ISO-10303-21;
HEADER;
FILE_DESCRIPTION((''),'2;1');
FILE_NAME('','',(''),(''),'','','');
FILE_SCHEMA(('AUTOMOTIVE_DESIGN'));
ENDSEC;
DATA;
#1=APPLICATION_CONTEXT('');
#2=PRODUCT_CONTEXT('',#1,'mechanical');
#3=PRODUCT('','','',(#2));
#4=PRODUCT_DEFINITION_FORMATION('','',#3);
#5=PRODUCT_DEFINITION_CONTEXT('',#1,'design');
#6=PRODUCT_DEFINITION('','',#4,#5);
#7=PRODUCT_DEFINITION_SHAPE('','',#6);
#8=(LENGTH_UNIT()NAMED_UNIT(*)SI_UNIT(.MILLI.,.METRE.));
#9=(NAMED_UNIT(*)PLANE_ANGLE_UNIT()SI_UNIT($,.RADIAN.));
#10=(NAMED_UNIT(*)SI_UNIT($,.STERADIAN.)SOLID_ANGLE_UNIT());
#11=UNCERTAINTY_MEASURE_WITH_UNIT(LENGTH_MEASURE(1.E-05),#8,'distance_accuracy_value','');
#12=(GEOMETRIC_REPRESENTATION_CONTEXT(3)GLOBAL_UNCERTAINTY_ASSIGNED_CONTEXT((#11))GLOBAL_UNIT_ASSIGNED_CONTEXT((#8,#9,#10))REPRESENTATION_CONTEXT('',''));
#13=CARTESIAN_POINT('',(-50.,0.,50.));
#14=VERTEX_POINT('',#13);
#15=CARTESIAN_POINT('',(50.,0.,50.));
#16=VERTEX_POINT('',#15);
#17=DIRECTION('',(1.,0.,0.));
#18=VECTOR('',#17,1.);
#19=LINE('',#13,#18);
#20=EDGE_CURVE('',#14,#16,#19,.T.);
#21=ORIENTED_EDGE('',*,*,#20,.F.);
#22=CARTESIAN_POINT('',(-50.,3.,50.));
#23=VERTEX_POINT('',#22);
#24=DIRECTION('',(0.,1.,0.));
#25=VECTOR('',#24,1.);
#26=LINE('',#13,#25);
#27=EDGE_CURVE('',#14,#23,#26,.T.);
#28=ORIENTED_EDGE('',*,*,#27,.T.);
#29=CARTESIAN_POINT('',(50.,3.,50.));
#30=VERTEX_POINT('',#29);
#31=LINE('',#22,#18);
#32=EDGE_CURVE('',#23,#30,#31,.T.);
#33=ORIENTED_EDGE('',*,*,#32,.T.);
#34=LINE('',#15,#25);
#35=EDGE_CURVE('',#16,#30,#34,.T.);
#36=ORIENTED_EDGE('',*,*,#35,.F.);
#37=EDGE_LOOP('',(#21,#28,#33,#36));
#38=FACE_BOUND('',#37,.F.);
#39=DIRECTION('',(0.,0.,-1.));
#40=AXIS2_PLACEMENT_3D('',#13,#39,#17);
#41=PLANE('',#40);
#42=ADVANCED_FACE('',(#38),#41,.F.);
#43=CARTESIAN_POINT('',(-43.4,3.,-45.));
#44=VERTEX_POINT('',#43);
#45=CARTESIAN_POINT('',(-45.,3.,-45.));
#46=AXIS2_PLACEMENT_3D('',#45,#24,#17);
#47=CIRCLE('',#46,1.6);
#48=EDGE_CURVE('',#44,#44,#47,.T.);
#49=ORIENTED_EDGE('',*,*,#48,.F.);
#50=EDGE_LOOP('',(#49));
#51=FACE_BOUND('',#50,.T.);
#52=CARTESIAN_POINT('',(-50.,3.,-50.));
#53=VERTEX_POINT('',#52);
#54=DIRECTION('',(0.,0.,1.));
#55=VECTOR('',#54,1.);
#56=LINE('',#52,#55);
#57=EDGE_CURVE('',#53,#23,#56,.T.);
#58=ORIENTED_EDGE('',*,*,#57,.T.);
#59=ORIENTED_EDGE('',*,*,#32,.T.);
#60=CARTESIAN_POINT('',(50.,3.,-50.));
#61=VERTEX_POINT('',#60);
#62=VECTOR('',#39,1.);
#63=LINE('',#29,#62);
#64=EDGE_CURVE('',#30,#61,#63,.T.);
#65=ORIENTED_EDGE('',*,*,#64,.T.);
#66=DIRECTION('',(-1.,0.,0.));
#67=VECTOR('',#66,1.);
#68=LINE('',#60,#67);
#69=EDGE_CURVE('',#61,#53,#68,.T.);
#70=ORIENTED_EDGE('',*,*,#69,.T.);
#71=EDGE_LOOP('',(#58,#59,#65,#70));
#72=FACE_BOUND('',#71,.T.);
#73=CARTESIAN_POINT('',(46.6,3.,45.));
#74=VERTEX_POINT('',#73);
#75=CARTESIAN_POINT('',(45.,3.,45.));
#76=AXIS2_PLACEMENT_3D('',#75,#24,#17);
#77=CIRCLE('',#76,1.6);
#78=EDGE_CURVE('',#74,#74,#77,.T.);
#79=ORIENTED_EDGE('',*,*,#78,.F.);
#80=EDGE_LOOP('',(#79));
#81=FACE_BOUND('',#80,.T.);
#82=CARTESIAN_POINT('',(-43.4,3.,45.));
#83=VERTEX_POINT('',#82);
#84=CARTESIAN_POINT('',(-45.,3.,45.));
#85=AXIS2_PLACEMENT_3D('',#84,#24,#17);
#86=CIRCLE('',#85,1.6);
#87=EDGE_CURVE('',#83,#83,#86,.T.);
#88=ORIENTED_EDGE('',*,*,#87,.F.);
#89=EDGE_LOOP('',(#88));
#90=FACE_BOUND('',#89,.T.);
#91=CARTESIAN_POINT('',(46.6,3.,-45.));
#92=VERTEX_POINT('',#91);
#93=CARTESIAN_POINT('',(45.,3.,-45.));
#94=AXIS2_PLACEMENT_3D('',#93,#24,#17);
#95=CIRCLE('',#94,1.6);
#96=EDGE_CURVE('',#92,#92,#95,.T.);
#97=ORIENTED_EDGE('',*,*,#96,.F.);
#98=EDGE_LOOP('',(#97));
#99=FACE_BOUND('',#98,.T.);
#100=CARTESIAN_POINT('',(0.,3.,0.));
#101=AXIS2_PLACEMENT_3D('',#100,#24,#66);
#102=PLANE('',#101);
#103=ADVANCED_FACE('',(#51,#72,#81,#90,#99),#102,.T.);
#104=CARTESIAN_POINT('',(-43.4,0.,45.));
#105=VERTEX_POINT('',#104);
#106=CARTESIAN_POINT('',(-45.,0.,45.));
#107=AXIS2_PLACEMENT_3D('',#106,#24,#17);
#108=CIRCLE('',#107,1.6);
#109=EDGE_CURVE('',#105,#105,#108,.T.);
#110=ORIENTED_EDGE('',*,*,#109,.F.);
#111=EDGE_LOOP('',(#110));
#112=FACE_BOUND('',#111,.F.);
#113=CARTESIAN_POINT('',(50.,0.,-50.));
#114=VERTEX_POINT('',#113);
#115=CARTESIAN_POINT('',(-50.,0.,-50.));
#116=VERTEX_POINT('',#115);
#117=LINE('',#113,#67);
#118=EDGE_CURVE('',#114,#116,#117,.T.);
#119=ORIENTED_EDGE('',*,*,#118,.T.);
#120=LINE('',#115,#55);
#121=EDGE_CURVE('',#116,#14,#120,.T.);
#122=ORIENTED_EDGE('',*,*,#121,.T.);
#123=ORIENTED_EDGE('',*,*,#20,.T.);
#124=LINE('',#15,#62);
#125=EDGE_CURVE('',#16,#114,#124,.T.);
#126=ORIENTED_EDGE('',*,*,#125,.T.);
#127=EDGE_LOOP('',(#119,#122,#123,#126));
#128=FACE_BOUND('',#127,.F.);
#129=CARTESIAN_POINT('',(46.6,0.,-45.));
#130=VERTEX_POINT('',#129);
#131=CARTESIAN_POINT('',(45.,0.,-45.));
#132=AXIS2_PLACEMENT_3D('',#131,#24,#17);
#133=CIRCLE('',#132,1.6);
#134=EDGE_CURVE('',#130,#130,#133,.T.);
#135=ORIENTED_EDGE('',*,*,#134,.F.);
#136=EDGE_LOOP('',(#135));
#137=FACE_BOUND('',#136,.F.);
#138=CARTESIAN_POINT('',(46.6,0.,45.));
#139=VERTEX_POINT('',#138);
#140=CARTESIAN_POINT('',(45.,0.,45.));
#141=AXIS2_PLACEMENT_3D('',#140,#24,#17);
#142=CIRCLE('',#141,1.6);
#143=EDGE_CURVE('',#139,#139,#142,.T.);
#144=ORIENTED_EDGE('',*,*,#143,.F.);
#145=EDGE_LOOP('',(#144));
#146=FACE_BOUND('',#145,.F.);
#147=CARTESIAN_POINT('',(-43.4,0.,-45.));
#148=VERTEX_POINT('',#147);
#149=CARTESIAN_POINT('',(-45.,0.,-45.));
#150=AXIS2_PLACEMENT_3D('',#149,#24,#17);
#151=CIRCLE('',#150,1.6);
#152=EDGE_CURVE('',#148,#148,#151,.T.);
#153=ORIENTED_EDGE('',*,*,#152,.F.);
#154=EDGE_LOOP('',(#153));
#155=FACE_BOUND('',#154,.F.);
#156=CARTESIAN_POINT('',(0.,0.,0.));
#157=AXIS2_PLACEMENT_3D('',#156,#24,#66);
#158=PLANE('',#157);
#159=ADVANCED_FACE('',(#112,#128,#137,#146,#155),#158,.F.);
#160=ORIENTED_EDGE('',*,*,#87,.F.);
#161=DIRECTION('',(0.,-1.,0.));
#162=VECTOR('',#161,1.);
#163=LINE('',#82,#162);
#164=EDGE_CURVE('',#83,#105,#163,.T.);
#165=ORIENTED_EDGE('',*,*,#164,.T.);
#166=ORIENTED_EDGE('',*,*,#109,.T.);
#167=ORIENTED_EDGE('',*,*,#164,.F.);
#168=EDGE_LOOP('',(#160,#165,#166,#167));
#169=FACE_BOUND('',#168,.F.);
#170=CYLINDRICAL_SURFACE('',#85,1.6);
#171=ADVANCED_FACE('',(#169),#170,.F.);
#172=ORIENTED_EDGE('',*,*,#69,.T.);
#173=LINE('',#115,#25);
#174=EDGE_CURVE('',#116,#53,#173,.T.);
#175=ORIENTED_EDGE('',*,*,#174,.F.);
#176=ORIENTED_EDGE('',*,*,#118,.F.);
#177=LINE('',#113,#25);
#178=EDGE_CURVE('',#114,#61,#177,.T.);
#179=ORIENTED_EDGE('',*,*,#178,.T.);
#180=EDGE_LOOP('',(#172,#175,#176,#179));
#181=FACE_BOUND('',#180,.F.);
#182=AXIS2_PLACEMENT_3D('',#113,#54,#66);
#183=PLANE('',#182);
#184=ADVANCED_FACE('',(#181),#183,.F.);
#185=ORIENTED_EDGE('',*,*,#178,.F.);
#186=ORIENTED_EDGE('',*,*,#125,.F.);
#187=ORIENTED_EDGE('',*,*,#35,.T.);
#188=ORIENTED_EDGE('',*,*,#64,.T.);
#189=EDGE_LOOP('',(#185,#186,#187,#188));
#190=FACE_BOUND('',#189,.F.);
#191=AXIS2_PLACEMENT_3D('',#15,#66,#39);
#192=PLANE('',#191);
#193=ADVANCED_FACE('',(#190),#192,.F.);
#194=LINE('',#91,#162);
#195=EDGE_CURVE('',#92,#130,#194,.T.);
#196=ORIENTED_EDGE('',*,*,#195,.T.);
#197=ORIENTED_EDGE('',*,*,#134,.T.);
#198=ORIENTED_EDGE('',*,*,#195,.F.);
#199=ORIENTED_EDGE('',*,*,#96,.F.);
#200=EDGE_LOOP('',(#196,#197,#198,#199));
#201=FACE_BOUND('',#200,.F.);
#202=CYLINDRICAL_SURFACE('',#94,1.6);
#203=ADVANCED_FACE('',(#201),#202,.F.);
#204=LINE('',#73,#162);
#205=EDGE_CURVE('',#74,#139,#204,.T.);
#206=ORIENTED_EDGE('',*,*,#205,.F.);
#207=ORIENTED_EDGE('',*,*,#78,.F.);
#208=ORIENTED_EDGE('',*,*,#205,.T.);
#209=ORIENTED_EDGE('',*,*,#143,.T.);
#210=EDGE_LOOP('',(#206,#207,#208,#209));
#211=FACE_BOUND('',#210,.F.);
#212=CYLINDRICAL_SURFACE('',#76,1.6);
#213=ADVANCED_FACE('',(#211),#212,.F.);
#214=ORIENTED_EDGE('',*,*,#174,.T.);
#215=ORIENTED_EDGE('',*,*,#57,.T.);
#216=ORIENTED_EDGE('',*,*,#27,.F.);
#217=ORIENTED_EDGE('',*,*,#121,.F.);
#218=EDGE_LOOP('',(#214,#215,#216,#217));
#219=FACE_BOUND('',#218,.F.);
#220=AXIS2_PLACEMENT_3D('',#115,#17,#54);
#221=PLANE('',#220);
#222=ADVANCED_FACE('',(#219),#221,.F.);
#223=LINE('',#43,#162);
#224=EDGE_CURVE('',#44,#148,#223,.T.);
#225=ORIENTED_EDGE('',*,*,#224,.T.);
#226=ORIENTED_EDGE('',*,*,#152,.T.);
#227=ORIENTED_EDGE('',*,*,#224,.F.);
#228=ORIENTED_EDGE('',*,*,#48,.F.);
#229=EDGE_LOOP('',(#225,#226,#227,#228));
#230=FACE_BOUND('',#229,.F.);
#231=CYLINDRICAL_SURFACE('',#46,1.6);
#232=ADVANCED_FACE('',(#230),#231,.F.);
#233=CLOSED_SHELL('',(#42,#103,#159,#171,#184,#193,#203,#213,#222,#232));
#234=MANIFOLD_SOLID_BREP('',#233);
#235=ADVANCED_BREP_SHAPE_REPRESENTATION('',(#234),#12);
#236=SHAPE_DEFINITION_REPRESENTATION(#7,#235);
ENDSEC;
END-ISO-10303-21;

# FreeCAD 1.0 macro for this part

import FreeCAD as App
import Part
import Sketcher
from FreeCAD import Vector
Q = App.Units.Quantity


def add_polygon(sketch, points):
    """Adds a closed chain of lines whose ends are joined by coincident constraints."""
    first, n = sketch.GeometryCount, len(points)
    for a, b in zip(points, points[1:] + points[:1]):
        sketch.addGeometry(Part.LineSegment(App.Vector(*a, 0), App.Vector(*b, 0)), False)
    for i in range(n):
        sketch.addConstraint(Sketcher.Constraint("Coincident", first + i, 2, first + (i + 1) % n, 1))

doc = App.newDocument("Part")
params = doc.addObject("Spreadsheet::Sheet", "Params")
for row, (alias, value) in enumerate([
    ("sketch1_width", "100 mm"),
    ("pad1_length", "3 mm"),
    ("sketch2_diameter", "3.2 mm"),
], start=1):
    params.set(f"A{row}", alias)
    params.set(f"B{row}", "=" + value)
    params.setAlias(f"B{row}", alias)

body = doc.addObject("PartDesign::Body", "Body")

sketch1 = doc.addObject("Sketcher::SketchObject", "Sketch")
body.addObject(sketch1)
sketch1.AttachmentSupport = (doc.XZ_Plane, [""])
sketch1.MapMode = "FlatFace"
add_polygon(sketch1, [(-50, -50), (-50, 50), (50, 50), (50, -50)])
sketch1.addConstraint(Sketcher.Constraint("Vertical", 0))
sketch1.addConstraint(Sketcher.Constraint("Horizontal", 1))
sketch1.addConstraint(Sketcher.Constraint("Vertical", 2))
sketch1.addConstraint(Sketcher.Constraint("Horizontal", 3))
sketch1.addConstraint(Sketcher.Constraint("Symmetric", 0, 2, 2, 2, -1, 1))
sketch1.addConstraint(Sketcher.Constraint("Equal", 3, 0))
sketch1.addConstraint(Sketcher.Constraint("DistanceX", 1, 1, 1, 2, Q("100 mm")))
sketch1.setExpression("Constraints[10]", "Params.sketch1_width")
pad1 = doc.addObject("PartDesign::Pad", "Pad")
body.addObject(pad1)
pad1.Profile = sketch1
pad1.setExpression("Length", "Params.pad1_length")
pad1.Reversed = True

sketch2 = doc.addObject("Sketcher::SketchObject", "Sketch001")
body.addObject(sketch2)
sketch2.AttachmentSupport = (doc.XZ_Plane, [""])
sketch2.MapMode = "FlatFace"
sketch2.AttachmentOffset = App.Placement(Vector(0, 0, -3), App.Rotation())
sketch2.addGeometry(Part.Circle(Vector(-45, -45, 0), Vector(0, 0, 1), 1.6), False)
sketch2.addGeometry(Part.Circle(Vector(45, -45, 0), Vector(0, 0, 1), 1.6), False)
sketch2.addGeometry(Part.Circle(Vector(45, 45, 0), Vector(0, 0, 1), 1.6), False)
sketch2.addGeometry(Part.Circle(Vector(-45, 45, 0), Vector(0, 0, 1), 1.6), False)
sketch2.addConstraint(Sketcher.Constraint("Equal", 0, 1))
sketch2.addConstraint(Sketcher.Constraint("Equal", 1, 2))
sketch2.addConstraint(Sketcher.Constraint("Equal", 2, 3))
sketch2.addConstraint(Sketcher.Constraint("Symmetric", 0, 3, 2, 3, -1, 1))
sketch2.addConstraint(Sketcher.Constraint("Symmetric", 1, 3, 3, 3, -1, 1))
sketch2.addConstraint(Sketcher.Constraint("Symmetric", 0, 3, 1, 3, -2))
sketch2.addConstraint(Sketcher.Constraint("Diameter", 0, Q("3.2 mm")))
sketch2.addConstraint(Sketcher.Constraint("DistanceX", 0, 3, -1, 1, Q("45 mm")))
sketch2.addConstraint(Sketcher.Constraint("DistanceY", 0, 3, -1, 1, Q("45 mm")))
sketch2.setExpression("Constraints[6]", "Params.sketch2_diameter")
pocket1 = doc.addObject("PartDesign::Pocket", "Pocket")
body.addObject(pocket1)
pocket1.Profile = sketch2
pocket1.Type = "ThroughAll"
pocket1.Reversed = True

doc.recompute()
